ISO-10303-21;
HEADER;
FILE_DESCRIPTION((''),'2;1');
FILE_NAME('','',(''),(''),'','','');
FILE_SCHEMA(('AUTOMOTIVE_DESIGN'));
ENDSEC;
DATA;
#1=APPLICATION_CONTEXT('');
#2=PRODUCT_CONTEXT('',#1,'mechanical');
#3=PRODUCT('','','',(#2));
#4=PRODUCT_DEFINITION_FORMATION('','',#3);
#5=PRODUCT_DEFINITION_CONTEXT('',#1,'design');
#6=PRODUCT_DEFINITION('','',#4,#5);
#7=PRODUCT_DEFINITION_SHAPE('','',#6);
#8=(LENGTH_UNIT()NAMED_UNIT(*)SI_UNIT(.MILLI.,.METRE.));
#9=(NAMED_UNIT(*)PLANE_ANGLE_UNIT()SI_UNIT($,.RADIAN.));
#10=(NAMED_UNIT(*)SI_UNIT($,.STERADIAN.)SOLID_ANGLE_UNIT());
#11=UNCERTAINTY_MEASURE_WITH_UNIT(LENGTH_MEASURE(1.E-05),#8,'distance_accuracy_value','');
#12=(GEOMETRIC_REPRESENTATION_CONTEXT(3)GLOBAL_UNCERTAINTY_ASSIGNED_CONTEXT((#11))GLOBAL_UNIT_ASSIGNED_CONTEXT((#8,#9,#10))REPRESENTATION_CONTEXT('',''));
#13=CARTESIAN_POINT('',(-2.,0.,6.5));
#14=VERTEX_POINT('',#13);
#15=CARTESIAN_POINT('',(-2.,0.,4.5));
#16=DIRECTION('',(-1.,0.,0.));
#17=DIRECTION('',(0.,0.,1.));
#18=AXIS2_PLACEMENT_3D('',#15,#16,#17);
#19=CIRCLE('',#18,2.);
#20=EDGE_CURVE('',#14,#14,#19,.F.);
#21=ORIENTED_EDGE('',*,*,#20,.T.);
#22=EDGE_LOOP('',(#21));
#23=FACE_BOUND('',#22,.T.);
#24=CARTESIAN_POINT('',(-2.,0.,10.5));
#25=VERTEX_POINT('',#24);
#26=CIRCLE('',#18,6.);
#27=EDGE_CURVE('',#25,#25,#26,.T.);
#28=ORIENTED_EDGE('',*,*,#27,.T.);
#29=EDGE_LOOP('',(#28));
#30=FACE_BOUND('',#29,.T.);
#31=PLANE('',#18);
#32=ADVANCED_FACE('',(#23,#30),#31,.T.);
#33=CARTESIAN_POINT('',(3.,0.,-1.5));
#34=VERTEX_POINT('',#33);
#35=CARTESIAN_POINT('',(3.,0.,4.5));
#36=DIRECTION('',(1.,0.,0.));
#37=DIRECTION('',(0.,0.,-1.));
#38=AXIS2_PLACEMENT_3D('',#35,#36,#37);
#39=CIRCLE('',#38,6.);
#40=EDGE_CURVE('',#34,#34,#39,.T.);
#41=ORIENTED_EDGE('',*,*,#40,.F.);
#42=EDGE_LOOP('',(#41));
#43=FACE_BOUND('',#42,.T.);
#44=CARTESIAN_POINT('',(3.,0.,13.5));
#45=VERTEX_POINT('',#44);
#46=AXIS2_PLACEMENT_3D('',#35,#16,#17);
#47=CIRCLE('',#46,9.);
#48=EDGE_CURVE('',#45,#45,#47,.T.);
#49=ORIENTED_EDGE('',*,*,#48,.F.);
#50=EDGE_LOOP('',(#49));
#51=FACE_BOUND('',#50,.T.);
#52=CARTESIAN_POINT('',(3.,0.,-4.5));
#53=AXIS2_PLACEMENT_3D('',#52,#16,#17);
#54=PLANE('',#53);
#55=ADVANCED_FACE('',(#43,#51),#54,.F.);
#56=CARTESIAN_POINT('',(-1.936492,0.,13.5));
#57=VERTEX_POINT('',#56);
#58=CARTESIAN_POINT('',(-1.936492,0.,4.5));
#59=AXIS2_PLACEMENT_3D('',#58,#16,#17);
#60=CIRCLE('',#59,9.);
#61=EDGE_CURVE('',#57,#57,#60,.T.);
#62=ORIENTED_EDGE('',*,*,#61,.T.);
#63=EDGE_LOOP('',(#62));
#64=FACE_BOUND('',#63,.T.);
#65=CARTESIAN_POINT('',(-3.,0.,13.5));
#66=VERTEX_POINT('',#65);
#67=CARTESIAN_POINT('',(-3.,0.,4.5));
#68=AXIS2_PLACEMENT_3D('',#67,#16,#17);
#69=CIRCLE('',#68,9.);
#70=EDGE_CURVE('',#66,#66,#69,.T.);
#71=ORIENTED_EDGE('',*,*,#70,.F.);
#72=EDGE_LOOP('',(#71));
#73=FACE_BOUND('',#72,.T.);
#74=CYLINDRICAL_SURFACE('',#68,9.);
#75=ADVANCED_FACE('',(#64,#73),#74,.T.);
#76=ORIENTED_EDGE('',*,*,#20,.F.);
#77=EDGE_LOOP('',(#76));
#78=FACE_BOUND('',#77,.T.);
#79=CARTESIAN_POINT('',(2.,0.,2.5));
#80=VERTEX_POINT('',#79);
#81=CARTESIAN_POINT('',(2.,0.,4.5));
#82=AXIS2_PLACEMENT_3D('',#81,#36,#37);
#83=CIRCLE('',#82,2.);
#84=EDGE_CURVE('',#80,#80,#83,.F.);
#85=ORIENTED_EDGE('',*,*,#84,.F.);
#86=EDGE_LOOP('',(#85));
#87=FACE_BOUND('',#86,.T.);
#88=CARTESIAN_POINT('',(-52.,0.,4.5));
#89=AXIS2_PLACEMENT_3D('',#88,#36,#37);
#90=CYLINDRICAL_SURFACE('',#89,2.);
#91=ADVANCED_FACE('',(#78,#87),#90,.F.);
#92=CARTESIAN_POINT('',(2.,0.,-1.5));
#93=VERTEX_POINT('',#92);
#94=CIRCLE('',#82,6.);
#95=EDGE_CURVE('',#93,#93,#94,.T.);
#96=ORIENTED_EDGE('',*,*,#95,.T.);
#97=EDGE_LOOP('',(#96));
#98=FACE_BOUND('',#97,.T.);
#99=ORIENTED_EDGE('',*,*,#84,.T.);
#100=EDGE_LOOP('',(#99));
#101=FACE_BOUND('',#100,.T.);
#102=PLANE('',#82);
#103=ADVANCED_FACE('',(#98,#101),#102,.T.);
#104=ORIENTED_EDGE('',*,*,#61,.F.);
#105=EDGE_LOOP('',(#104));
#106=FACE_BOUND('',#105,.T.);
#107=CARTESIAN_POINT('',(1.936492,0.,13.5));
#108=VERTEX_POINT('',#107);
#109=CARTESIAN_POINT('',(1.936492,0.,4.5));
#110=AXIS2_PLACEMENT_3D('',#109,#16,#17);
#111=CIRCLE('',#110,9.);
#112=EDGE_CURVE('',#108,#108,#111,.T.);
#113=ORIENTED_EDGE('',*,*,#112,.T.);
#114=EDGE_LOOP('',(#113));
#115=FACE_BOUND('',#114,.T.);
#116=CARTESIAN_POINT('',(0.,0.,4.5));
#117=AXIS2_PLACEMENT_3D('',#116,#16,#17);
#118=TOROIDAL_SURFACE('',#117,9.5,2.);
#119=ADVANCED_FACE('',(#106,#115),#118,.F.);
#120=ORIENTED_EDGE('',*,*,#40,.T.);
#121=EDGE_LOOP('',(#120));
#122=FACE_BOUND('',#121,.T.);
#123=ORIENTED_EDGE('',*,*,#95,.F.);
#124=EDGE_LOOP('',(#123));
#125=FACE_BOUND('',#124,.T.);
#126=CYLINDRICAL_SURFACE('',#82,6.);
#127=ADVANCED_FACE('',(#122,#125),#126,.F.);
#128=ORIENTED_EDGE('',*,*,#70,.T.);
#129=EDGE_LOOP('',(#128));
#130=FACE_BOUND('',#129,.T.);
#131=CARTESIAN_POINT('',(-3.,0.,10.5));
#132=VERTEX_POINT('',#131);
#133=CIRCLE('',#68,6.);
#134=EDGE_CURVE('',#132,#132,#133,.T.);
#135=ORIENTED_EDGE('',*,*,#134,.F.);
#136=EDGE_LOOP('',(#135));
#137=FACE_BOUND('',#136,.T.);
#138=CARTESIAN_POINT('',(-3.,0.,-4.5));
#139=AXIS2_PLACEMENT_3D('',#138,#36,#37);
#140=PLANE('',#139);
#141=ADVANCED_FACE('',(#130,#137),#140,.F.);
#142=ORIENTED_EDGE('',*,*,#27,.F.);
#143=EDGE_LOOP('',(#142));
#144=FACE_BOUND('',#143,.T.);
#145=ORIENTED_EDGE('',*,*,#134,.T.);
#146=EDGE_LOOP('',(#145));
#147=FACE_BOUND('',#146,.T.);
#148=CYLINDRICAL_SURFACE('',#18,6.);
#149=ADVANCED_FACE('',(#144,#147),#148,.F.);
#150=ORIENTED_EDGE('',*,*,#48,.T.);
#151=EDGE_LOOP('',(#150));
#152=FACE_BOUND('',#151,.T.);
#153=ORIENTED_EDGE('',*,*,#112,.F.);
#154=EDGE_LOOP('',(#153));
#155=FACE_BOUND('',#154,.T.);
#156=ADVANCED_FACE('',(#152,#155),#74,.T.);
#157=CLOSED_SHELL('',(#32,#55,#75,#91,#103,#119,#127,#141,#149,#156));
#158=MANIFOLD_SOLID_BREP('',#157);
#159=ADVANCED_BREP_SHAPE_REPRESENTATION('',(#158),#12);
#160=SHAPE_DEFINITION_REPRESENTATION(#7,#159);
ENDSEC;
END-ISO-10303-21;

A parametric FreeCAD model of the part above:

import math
import FreeCAD as App
import Part
import Sketcher
from FreeCAD import Vector
Q = App.Units.Quantity

doc = App.newDocument("Part")
body = doc.addObject("PartDesign::Body", "Body")

# Sketch on XZ plane
sketch1 = body.newObject("Sketcher::SketchObject", "Sketch")
sketch1.AttachmentSupport = (doc.getObject("XZ_Plane"), [""])
sketch1.MapMode = "FlatFace"
sketch1.addGeometry([
    Part.LineSegment(Vector(-3, -4.5, 0), Vector(-3, 4.5, 0)),  # 0
    Part.LineSegment(Vector(-3, 4.5, 0), Vector(3, 4.5, 0)),  # 1
    Part.LineSegment(Vector(3, 4.5, 0), Vector(3, -4.5, 0)),  # 2
    Part.LineSegment(Vector(3, -4.5, 0), Vector(1.9, -4.5, 0)),  # 3
    Part.ArcOfCircle(Part.Circle(Vector(0, -5, 0), Vector(0, 0, 1), 2), math.radians(14), math.radians(166)),  # 4
    Part.LineSegment(Vector(-1.9, -4.5, 0), Vector(-3, -4.5, 0)),  # 5
], False)
sketch1.addGeometry(Part.LineSegment(Vector(-3, 4.5, 0), Vector(3, 4.5, 0)), True)  # axis
sketch1.addConstraint([
    Sketcher.Constraint("Coincident", 0, 2, 1, 1),
    Sketcher.Constraint("Coincident", 1, 2, 2, 1),
    Sketcher.Constraint("Coincident", 2, 2, 3, 1),
    Sketcher.Constraint("Coincident", 3, 2, 4, 1),
    Sketcher.Constraint("Coincident", 4, 2, 5, 1),
    Sketcher.Constraint("Coincident", 5, 2, 0, 1),
    Sketcher.Constraint("Vertical", 0),
    Sketcher.Constraint("Horizontal", 1),
    Sketcher.Constraint("Vertical", 2),
    Sketcher.Constraint("Horizontal", 3),
    Sketcher.Constraint("Horizontal", 5),
    Sketcher.Constraint("Horizontal", 6),
    Sketcher.Constraint("Coincident", 6, 1, 0, 2),
    Sketcher.Constraint("Symmetric", 0, 2, 2, 2, -1, 1),
    Sketcher.Constraint("Symmetric", 5, 2, 6, 2, -1, 1),
    Sketcher.Constraint("PointOnObject", 4, 3, -2),
    Sketcher.Constraint("Radius", 4, Q("2 mm")),
    Sketcher.Constraint("DistanceX", 1, 1, 1, 2, Q("6 mm")),
    Sketcher.Constraint("DistanceY", 0, 1, 0, 2, Q("9 mm")),
    Sketcher.Constraint("DistanceY", 4, 3, -1, 1, Q("5 mm")),
])
revolution = body.newObject("PartDesign::Revolution", "Revolution")
revolution.Profile = sketch1
revolution.ReferenceAxis = (sketch1, ["Axis0"])
revolution.Angle = 360

# Sketch on YZ plane
sketch2 = body.newObject("Sketcher::SketchObject", "Sketch001")
sketch2.AttachmentSupport = (doc.getObject("YZ_Plane"), [""])
sketch2.MapMode = "FlatFace"
sketch2.AttachmentOffset = App.Placement(Vector(0, 0, 3), App.Rotation())
sketch2.addGeometry(Part.Circle(Vector(0, 4.5, 0), Vector(0, 0, 1), 2), False)
sketch2.addConstraint([
    Sketcher.Constraint("PointOnObject", 0, 3, -2),
    Sketcher.Constraint("Diameter", 0, Q("4 mm")),
    Sketcher.Constraint("DistanceY", -1, 1, 0, 3, Q("4.5 mm")),
])
pocket1 = body.newObject("PartDesign::Pocket", "Pocket")
pocket1.Profile = sketch2
pocket1.Length = 55

# Sketch on YZ plane
sketch3 = body.newObject("Sketcher::SketchObject", "Sketch002")
sketch3.AttachmentSupport = (doc.getObject("YZ_Plane"), [""])
sketch3.MapMode = "FlatFace"
sketch3.AttachmentOffset = App.Placement(Vector(0, 0, 3), App.Rotation())
sketch3.addGeometry(Part.Circle(Vector(0, 4, 0), Vector(0, 0, 1), 6), False)
sketch3.addConstraint([
    Sketcher.Constraint("PointOnObject", 0, 3, -2),
    Sketcher.Constraint("Diameter", 0, Q("12 mm")),
    Sketcher.Constraint("DistanceY", -1, 1, 0, 3, Q("4.5 mm")),
])
pocket2 = body.newObject("PartDesign::Pocket", "Pocket001")
pocket2.Profile = sketch3
pocket2.Length = 1

# Sketch on YZ plane
sketch4 = body.newObject("Sketcher::SketchObject", "Sketch003")
sketch4.AttachmentSupport = (doc.getObject("YZ_Plane"), [""])
sketch4.MapMode = "FlatFace"
sketch4.AttachmentOffset = App.Placement(Vector(0, 0, -2), App.Rotation())
sketch4.addGeometry(Part.Circle(Vector(0, 4, 0), Vector(0, 0, 1), 6), False)
sketch4.addConstraint([
    Sketcher.Constraint("PointOnObject", 0, 3, -2),
    Sketcher.Constraint("Diameter", 0, Q("12 mm")),
    Sketcher.Constraint("DistanceY", -1, 1, 0, 3, Q("4.5 mm")),
])
pocket3 = body.newObject("PartDesign::Pocket", "Pocket002")
pocket3.Profile = sketch4
pocket3.Length = 1

doc.recompute()
